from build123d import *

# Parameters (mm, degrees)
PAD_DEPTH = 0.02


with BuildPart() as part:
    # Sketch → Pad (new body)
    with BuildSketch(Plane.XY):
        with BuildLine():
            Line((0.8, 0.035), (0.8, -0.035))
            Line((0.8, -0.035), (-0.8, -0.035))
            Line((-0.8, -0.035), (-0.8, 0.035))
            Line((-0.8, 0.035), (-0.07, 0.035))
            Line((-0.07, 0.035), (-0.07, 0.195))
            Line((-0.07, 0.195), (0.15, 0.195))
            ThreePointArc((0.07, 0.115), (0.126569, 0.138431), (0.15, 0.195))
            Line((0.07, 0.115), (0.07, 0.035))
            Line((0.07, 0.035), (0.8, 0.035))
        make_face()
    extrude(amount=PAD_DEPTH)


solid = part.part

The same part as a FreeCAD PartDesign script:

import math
import FreeCAD as App
import Part
import Sketcher
from FreeCAD import Vector

doc = App.newDocument("Part")
params = doc.addObject("Spreadsheet::Sheet", "Params")
for row, (alias, value) in enumerate([
    ("sketch1_radius", "0.079998 mm"),
    ("sketch1_width", "1.6 mm"),
    ("sketch1_width2", "0.73 mm"),
    ("sketch1_height", "0.07 mm"),
    ("sketch1_height2", "0.08 mm"),
    ("pad1_length", "0.02 mm"),
], start=1):
    params.set(f"A{row}", alias)
    params.set(f"B{row}", "=" + value)
    params.setAlias(f"B{row}", alias)

body = doc.addObject("PartDesign::Body", "Body")

# Sketch on XY plane
sketch1 = doc.addObject("Sketcher::SketchObject", "Sketch")
body.addObject(sketch1)
sketch1.AttachmentSupport = (doc.XY_Plane, [""])
sketch1.MapMode = "FlatFace"
sketch1.addGeometry([
    Part.LineSegment(Vector(0.8, -0.04, 0), Vector(0.8, 0.04, 0)),  # 0
    Part.LineSegment(Vector(0.8, 0.04, 0), Vector(0.07, 0.04, 0)),  # 1
    Part.LineSegment(Vector(0.07, 0.04, 0), Vector(0.07, 0.12, 0)),  # 2
    Part.ArcOfCircle(Part.Circle(Vector(0.07, 0.19, 0), Vector(0, 0, 1), 0.08), math.radians(-90), math.radians(0)),  # 3
    Part.LineSegment(Vector(0.15, 0.2, 0), Vector(-0.07, 0.2, 0)),  # 4
    Part.LineSegment(Vector(-0.07, 0.2, 0), Vector(-0.07, 0.04, 0)),  # 5
    Part.LineSegment(Vector(-0.07, 0.04, 0), Vector(-0.8, 0.04, 0)),  # 6
    Part.LineSegment(Vector(-0.8, 0.04, 0), Vector(-0.8, -0.04, 0)),  # 7
    Part.LineSegment(Vector(-0.8, -0.04, 0), Vector(0.8, -0.04, 0)),  # 8
], False)
sketch1.addConstraint([
    Sketcher.Constraint("Coincident", 0, 2, 1, 1),
    Sketcher.Constraint("Coincident", 1, 2, 2, 1),
    Sketcher.Constraint("Coincident", 2, 2, 3, 1),
    Sketcher.Constraint("Coincident", 3, 2, 4, 1),
    Sketcher.Constraint("Coincident", 4, 2, 5, 1),
    Sketcher.Constraint("Coincident", 5, 2, 6, 1),
    Sketcher.Constraint("Coincident", 6, 2, 7, 1),
    Sketcher.Constraint("Coincident", 7, 2, 8, 1),
    Sketcher.Constraint("Coincident", 8, 2, 0, 1),
    Sketcher.Constraint("Vertical", 0),
    Sketcher.Constraint("Horizontal", 1),
    Sketcher.Constraint("Vertical", 2),
    Sketcher.Constraint("Horizontal", 4),
    Sketcher.Constraint("Vertical", 5),
    Sketcher.Constraint("Horizontal", 6),
    Sketcher.Constraint("Vertical", 7),
    Sketcher.Constraint("Horizontal", 8),
    Sketcher.Constraint("Symmetric", 0, 2, 7, 2, -1, 1),
    Sketcher.Constraint("Symmetric", 1, 2, 5, 2, -2),
    Sketcher.Constraint("Vertical", 3, 3, 1, 2),
    Sketcher.Constraint("Radius", 3, 0.079998),
    Sketcher.Constraint("DistanceX", 8, 1, 8, 2, 1.6),
    Sketcher.Constraint("DistanceX", 1, 2, 1, 1, 0.73),
    Sketcher.Constraint("DistanceY", 0, 1, 0, 2, 0.07),
    Sketcher.Constraint("DistanceY", 2, 1, 2, 2, 0.08),
    Sketcher.Constraint("DistanceY", 5, 2, 5, 1, 0.16),
])
sketch1.setExpression("Constraints[20]", "Params.sketch1_radius")
sketch1.setExpression("Constraints[21]", "Params.sketch1_width")
sketch1.setExpression("Constraints[22]", "Params.sketch1_width2")
sketch1.setExpression("Constraints[23]", "Params.sketch1_height")
sketch1.setExpression("Constraints[24]", "Params.sketch1_height2")
pad1 = doc.addObject("PartDesign::Pad", "Pad")
body.addObject(pad1)
pad1.Profile = sketch1
pad1.setExpression("Length", "Params.pad1_length")

doc.recompute()
